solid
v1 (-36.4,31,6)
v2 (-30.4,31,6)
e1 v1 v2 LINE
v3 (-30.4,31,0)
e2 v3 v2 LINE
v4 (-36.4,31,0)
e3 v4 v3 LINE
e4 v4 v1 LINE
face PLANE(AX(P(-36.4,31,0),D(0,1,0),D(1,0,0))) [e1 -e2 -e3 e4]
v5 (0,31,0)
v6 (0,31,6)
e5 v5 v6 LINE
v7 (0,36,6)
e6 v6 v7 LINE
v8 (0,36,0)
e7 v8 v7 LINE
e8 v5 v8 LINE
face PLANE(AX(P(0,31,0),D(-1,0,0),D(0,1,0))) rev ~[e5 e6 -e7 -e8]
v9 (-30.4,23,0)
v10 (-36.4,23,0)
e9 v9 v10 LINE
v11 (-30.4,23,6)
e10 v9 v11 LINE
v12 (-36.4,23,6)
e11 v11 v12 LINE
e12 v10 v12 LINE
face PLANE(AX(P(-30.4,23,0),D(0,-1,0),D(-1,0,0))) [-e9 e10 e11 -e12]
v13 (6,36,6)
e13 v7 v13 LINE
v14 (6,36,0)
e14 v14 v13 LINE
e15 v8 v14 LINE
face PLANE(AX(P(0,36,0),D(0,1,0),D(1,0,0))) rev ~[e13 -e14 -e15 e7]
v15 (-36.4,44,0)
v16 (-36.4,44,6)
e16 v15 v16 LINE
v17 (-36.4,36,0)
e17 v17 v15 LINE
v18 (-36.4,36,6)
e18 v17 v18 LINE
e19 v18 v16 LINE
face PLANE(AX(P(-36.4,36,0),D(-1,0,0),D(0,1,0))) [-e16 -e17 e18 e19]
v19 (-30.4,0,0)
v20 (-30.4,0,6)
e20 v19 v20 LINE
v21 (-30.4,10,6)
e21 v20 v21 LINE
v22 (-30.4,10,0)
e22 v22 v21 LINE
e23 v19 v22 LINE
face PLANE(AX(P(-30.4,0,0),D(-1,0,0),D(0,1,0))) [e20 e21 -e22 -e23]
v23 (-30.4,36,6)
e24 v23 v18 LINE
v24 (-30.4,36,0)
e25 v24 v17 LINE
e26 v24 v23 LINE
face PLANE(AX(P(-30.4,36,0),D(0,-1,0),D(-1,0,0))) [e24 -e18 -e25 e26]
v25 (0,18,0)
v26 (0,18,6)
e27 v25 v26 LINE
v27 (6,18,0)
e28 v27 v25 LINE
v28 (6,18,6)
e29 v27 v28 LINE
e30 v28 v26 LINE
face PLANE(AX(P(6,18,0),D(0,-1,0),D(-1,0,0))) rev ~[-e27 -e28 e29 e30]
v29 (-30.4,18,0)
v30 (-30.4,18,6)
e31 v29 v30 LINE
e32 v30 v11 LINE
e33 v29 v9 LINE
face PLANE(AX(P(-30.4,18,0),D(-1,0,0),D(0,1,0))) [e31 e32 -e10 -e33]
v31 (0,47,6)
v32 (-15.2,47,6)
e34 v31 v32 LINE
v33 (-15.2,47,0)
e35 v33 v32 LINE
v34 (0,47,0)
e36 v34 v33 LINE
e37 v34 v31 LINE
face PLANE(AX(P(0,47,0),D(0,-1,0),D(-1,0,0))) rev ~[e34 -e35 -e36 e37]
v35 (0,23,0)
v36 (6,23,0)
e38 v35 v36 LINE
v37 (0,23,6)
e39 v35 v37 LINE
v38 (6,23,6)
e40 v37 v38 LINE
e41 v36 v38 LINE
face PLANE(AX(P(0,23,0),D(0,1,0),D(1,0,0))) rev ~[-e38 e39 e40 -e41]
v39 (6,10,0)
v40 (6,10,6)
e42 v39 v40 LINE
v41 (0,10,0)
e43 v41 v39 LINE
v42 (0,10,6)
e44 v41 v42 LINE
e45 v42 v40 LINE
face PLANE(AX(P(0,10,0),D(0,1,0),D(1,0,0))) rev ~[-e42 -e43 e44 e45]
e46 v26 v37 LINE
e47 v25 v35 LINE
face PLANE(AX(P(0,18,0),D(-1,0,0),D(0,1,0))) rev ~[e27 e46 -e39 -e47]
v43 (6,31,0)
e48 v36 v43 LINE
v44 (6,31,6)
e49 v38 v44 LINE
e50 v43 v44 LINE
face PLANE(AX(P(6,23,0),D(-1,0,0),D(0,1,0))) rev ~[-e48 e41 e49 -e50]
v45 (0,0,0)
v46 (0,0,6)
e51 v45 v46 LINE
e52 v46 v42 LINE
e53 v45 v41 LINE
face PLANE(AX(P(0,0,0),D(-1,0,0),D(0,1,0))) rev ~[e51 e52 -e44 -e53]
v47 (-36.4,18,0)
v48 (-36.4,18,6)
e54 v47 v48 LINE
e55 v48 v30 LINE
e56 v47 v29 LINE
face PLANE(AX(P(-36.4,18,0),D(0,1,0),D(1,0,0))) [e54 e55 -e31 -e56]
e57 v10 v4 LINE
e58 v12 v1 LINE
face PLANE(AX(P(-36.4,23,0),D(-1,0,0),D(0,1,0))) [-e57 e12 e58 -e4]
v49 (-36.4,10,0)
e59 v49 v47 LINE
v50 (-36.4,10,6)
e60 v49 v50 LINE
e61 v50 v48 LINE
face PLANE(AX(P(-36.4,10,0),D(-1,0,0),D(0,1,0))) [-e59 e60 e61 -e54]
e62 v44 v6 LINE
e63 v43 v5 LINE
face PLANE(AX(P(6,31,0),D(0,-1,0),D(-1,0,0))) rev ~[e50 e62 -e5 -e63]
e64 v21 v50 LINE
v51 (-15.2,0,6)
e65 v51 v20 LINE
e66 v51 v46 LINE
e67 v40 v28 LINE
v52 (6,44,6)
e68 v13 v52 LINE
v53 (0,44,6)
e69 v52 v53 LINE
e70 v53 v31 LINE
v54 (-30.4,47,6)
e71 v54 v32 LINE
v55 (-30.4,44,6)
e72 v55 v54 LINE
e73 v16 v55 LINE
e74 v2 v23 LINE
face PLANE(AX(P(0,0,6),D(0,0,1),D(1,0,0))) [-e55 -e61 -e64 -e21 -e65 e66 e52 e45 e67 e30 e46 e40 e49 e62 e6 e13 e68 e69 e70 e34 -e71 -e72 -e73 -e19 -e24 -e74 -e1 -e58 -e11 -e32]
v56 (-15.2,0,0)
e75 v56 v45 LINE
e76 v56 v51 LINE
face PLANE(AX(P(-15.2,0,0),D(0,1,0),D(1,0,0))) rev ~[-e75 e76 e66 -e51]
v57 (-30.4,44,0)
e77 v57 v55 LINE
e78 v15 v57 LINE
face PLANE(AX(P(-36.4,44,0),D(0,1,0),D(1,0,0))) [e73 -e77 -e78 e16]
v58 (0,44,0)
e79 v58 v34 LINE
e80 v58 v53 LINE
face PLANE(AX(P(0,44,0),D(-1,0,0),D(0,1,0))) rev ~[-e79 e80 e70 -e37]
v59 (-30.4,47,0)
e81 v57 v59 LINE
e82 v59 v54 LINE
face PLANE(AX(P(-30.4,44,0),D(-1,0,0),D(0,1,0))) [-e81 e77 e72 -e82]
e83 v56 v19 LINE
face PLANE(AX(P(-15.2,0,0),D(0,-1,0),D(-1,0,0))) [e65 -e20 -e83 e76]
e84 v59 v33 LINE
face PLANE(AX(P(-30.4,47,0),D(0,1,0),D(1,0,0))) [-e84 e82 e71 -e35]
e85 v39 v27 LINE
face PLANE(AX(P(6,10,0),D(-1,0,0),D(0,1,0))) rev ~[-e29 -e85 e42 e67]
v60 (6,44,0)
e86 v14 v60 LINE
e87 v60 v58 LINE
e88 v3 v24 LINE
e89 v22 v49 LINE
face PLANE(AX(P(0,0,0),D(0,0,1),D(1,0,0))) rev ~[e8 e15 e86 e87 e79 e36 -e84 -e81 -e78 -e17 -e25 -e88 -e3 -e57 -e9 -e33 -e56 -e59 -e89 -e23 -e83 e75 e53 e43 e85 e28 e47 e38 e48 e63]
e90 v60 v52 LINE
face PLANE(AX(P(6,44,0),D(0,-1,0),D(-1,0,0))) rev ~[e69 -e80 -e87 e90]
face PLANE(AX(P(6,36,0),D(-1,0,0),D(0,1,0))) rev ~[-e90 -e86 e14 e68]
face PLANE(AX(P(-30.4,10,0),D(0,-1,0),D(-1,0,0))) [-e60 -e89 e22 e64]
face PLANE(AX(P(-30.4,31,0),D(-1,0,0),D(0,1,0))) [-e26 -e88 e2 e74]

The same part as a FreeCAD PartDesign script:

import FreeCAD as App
import Part
import Sketcher
Q = App.Units.Quantity


def add_polygon(sketch, points):
    """Adds a closed chain of lines whose ends are joined by coincident constraints."""
    first, n = sketch.GeometryCount, len(points)
    for a, b in zip(points, points[1:] + points[:1]):
        sketch.addGeometry(Part.LineSegment(App.Vector(*a, 0), App.Vector(*b, 0)), False)
    for i in range(n):
        sketch.addConstraint(Sketcher.Constraint("Coincident", first + i, 2, first + (i + 1) % n, 1))

doc = App.newDocument("Part")
body = doc.addObject("PartDesign::Body", "Body")

# Sketch on XY plane
sketch1 = doc.addObject("Sketcher::SketchObject", "Sketch")
body.addObject(sketch1)
sketch1.AttachmentSupport = (doc.XY_Plane, [""])
sketch1.MapMode = "FlatFace"
add_polygon(sketch1, [(-30.4, 0), (0, 0), (0, 10), (6, 10), (6, 18), (0, 18), (0, 23), (6, 23), (6, 31), (0, 31), (0, 36), (6, 36), (6, 44), (0, 44), (0, 47), (-30.4, 47), (-30.4, 44), (-36.4, 44), (-36.4, 36), (-30.4, 36), (-30.4, 31), (-36.4, 31), (-36.4, 23), (-30.4, 23), (-30.4, 18), (-36.4, 18), (-36.4, 10), (-30.4, 10)])  # lines 0-27
sketch1.addConstraint([
    Sketcher.Constraint("Horizontal", 0),
    Sketcher.Constraint("Vertical", 1),
    Sketcher.Constraint("Horizontal", 2),
    Sketcher.Constraint("Vertical", 3),
    Sketcher.Constraint("Horizontal", 4),
    Sketcher.Constraint("Vertical", 5),
    Sketcher.Constraint("Horizontal", 6),
    Sketcher.Constraint("Vertical", 7),
    Sketcher.Constraint("Horizontal", 8),
    Sketcher.Constraint("Vertical", 9),
    Sketcher.Constraint("Horizontal", 10),
    Sketcher.Constraint("Vertical", 11),
    Sketcher.Constraint("Horizontal", 12),
    Sketcher.Constraint("Vertical", 13),
    Sketcher.Constraint("Horizontal", 14),
    Sketcher.Constraint("Vertical", 15),
    Sketcher.Constraint("Horizontal", 16),
    Sketcher.Constraint("Vertical", 17),
    Sketcher.Constraint("Horizontal", 18),
    Sketcher.Constraint("Vertical", 19),
    Sketcher.Constraint("Horizontal", 20),
    Sketcher.Constraint("Vertical", 21),
    Sketcher.Constraint("Horizontal", 22),
    Sketcher.Constraint("Vertical", 23),
    Sketcher.Constraint("Horizontal", 24),
    Sketcher.Constraint("Vertical", 25),
    Sketcher.Constraint("Horizontal", 26),
    Sketcher.Constraint("Vertical", 27),
    Sketcher.Constraint("Coincident", 0, 2, -1, 1),
    Sketcher.Constraint("PointOnObject", 4, 2, -2),
    Sketcher.Constraint("PointOnObject", 8, 2, -2),
    Sketcher.Constraint("PointOnObject", 12, 2, -2),
    Sketcher.Constraint("Horizontal", 12, 2, 15, 2),
    Sketcher.Constraint("Horizontal", 10, 2, 17, 2),
    Sketcher.Constraint("Horizontal", 8, 2, 19, 2),
    Sketcher.Constraint("Horizontal", 6, 2, 21, 2),
    Sketcher.Constraint("Horizontal", 4, 2, 23, 2),
    Sketcher.Constraint("Horizontal", 2, 2, 25, 2),
    Sketcher.Constraint("Vertical", 3, 2, 6, 2),
    Sketcher.Constraint("Vertical", 7, 2, 10, 2),
    Sketcher.Constraint("Vertical", 15, 2, 18, 2),
    Sketcher.Constraint("Vertical", 17, 2, 20, 2),
    Sketcher.Constraint("Vertical", 19, 2, 22, 2),
    Sketcher.Constraint("Vertical", 21, 2, 24, 2),
    Sketcher.Constraint("Vertical", 23, 2, 26, 2),
    Sketcher.Constraint("Equal", 12, 16),
    Sketcher.Constraint("Equal", 3, 7),
    Sketcher.Constraint("Equal", 5, 9),
    Sketcher.Constraint("Equal", 7, 11),
    Sketcher.Constraint("DistanceX", 2, 1, 2, 2, Q("6 mm")),
    Sketcher.Constraint("DistanceY", 1, 1, 1, 2, Q("10 mm")),
    Sketcher.Constraint("DistanceY", 3, 1, 3, 2, Q("8 mm")),
    Sketcher.Constraint("DistanceY", 5, 1, 5, 2, Q("5 mm")),
    Sketcher.Constraint("DistanceY", 13, 1, 13, 2, Q("3 mm")),
    Sketcher.Constraint("DistanceX", 0, 1, 0, 2, Q("30.4 mm")),
])
pad1 = doc.addObject("PartDesign::Pad", "Pad")
body.addObject(pad1)
pad1.Profile = sketch1
pad1.Length = 6

doc.recompute()
